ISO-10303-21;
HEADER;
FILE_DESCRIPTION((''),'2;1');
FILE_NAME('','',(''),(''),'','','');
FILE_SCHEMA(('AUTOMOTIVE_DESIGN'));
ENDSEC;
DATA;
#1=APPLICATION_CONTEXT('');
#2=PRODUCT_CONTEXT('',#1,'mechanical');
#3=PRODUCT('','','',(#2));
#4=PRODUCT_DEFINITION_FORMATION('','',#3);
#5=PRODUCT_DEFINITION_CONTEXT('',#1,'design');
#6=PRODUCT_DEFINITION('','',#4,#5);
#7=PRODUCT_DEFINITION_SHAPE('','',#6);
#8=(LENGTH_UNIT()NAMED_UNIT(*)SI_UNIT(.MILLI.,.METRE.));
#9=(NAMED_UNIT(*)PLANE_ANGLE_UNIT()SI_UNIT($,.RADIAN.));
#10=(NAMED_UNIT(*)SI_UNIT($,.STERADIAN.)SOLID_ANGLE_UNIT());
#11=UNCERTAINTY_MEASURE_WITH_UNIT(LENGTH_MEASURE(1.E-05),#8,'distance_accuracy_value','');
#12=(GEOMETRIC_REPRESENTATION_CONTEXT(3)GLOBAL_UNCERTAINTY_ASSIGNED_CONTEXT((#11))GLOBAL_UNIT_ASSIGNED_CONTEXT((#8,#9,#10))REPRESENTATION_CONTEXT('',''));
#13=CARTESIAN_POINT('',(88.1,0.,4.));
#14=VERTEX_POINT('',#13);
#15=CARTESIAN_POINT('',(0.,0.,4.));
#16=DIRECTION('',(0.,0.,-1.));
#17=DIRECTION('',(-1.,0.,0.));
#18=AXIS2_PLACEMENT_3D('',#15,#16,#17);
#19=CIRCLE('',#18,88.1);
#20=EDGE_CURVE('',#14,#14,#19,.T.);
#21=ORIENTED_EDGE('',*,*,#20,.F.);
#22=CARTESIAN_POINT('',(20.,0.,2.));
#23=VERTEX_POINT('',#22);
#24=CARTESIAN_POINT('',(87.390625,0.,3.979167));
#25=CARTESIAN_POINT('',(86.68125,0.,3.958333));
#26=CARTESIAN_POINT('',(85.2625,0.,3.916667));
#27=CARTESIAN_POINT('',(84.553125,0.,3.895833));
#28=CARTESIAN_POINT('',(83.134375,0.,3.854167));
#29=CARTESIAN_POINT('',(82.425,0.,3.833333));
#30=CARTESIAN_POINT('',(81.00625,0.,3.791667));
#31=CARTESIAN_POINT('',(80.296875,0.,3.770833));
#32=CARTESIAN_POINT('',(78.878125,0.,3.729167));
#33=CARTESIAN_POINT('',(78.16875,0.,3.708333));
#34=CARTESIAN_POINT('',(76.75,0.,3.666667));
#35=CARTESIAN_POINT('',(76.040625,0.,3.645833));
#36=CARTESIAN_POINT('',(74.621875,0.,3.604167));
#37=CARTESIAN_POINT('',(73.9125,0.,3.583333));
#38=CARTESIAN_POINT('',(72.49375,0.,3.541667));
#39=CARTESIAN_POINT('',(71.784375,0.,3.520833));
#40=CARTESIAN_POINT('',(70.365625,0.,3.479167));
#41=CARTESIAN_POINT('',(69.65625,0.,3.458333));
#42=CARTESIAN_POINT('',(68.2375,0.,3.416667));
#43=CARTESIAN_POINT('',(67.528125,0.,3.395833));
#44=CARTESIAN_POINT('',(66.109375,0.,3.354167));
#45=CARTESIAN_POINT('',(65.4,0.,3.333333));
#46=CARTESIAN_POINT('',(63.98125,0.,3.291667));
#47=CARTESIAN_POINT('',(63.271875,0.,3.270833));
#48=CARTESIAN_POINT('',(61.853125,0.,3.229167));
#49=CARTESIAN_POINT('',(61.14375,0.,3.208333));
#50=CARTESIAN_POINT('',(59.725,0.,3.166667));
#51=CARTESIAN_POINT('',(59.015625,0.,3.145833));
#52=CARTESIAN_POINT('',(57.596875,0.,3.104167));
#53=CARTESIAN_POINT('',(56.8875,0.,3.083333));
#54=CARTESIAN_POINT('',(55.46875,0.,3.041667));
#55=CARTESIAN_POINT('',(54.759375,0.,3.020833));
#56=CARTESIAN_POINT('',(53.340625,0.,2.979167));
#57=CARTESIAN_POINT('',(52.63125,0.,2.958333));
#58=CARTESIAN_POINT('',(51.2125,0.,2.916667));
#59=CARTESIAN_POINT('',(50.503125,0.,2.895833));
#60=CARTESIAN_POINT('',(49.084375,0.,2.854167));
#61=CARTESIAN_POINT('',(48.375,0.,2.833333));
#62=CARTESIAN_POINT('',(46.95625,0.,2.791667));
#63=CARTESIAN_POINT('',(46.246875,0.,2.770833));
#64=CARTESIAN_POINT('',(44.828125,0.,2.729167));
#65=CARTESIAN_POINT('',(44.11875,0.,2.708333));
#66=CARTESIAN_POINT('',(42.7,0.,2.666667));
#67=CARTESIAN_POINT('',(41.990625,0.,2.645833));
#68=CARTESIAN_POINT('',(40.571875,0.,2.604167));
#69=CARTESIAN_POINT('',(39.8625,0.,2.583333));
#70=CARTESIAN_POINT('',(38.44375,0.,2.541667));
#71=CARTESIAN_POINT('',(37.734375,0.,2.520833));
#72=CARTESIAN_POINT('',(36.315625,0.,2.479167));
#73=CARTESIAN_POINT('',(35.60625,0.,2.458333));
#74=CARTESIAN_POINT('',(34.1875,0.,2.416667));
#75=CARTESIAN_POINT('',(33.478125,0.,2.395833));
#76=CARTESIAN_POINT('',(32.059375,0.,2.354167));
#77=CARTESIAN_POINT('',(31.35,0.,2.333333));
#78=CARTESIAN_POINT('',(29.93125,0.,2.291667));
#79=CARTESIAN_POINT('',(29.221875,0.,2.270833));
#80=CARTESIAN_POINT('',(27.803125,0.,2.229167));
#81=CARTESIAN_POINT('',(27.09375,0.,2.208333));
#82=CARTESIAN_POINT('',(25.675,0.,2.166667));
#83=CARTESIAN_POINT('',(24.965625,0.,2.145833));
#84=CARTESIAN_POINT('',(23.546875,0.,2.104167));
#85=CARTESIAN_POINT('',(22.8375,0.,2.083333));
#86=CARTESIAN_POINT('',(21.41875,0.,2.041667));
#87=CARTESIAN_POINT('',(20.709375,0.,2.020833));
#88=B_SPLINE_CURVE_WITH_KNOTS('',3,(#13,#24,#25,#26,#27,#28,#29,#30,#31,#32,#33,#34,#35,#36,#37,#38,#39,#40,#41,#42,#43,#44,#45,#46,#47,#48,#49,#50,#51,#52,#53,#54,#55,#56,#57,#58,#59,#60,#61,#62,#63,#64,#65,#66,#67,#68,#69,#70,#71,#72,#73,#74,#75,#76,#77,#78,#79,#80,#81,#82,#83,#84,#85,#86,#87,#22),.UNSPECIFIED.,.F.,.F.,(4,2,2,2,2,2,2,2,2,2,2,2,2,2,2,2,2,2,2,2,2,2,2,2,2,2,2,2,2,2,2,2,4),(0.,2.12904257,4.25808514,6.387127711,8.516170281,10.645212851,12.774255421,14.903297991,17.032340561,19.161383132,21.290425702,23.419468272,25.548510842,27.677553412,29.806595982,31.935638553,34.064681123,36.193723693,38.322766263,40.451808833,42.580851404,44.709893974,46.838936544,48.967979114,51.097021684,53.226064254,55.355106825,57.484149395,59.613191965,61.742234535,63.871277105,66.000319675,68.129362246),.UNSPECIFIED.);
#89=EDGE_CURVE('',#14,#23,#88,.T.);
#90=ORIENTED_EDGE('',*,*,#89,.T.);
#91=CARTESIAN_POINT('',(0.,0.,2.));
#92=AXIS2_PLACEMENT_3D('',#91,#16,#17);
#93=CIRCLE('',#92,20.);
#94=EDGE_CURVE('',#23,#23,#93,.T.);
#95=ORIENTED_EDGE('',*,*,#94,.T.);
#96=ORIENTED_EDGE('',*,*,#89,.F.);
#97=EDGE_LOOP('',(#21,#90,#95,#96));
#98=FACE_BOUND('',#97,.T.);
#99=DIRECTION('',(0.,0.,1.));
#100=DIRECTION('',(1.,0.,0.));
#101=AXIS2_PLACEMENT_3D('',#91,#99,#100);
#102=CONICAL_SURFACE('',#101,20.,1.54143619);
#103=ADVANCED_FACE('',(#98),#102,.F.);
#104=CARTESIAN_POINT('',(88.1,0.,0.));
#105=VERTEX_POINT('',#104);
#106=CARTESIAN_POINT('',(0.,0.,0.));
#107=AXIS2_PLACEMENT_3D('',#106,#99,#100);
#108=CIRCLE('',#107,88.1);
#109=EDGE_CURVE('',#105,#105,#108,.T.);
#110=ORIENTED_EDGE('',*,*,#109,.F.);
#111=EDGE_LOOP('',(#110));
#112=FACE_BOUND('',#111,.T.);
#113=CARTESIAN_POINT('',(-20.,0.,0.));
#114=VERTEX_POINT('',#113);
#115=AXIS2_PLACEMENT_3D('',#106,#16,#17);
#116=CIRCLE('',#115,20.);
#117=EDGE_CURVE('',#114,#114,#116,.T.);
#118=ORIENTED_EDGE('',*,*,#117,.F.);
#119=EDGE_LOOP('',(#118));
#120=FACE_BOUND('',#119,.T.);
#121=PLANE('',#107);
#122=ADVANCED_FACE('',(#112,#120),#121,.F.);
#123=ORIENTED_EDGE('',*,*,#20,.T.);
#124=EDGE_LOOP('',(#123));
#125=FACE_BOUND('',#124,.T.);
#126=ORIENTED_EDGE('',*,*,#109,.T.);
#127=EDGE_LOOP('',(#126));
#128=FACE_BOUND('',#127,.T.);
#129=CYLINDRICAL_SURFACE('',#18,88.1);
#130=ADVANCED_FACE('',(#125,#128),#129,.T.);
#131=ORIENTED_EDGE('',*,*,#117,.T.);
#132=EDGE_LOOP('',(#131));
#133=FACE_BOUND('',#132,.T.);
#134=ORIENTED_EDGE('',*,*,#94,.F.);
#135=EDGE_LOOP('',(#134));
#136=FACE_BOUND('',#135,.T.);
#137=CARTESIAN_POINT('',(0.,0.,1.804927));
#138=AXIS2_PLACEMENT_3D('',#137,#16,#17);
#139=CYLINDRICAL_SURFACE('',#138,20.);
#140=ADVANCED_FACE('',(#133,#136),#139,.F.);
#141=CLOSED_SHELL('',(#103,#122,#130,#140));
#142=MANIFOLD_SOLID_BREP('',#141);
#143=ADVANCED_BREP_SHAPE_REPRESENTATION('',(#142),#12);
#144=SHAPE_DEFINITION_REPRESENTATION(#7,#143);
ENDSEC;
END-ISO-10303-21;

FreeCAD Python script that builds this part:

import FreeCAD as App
import Part
import Sketcher
from FreeCAD import Vector

doc = App.newDocument("Part")
body = doc.addObject("PartDesign::Body", "Body")

# Sketch on XY plane
sketch1 = body.newObject("Sketcher::SketchObject", "Sketch")
sketch1.AttachmentSupport = (doc.getObject("XY_Plane"), [""])
sketch1.MapMode = "FlatFace"
sketch1.addGeometry(Part.Circle(Vector(0, 0, 0), Vector(0, 0, 1), 88), False)
sketch1.addConstraint([
    Sketcher.Constraint("Coincident", 0, 3, -1, 1),
    Sketcher.Constraint("Diameter", 0, 176.2),
])
pad1 = body.newObject("PartDesign::Pad", "Pad")
pad1.Profile = sketch1
pad1.Length = 4

# Sketch on XZ plane
sketch2 = body.newObject("Sketcher::SketchObject", "Sketch001")
sketch2.AttachmentSupport = (doc.getObject("XZ_Plane"), [""])
sketch2.MapMode = "FlatFace"
sketch2.addGeometry([
    Part.LineSegment(Vector(0, 4, 0), Vector(0, 0, 0)),  # 0
    Part.LineSegment(Vector(0, 0, 0), Vector(-20, 0, 0)),  # 1
    Part.LineSegment(Vector(-20, 0, 0), Vector(-20, 2, 0)),  # 2
    Part.LineSegment(Vector(-20, 2, 0), Vector(-88.1, 4, 0)),  # 3
    Part.LineSegment(Vector(-88.1, 4, 0), Vector(0, 4, 0)),  # 4
], False)
sketch2.addConstraint([
    Sketcher.Constraint("Coincident", 0, 2, 1, 1),
    Sketcher.Constraint("Coincident", 1, 2, 2, 1),
    Sketcher.Constraint("Coincident", 2, 2, 3, 1),
    Sketcher.Constraint("Coincident", 3, 2, 4, 1),
    Sketcher.Constraint("Coincident", 4, 2, 0, 1),
    Sketcher.Constraint("Vertical", 0),
    Sketcher.Constraint("Horizontal", 1),
    Sketcher.Constraint("Vertical", 2),
    Sketcher.Constraint("Horizontal", 4),
    Sketcher.Constraint("Coincident", 0, 2, -1, 1),
    Sketcher.Constraint("DistanceX", 1, 2, 1, 1, 20.0),
    Sketcher.Constraint("DistanceY", 0, 2, 0, 1, 4.0),
    Sketcher.Constraint("DistanceY", 2, 1, 2, 2, 2.0),
    Sketcher.Constraint("DistanceX", 4, 1, 4, 2, 88.1),
])
groove = body.newObject("PartDesign::Groove", "Groove")
groove.Profile = sketch2
groove.ReferenceAxis = (sketch2, ["V_Axis"])
groove.Angle = 360

doc.recompute()
